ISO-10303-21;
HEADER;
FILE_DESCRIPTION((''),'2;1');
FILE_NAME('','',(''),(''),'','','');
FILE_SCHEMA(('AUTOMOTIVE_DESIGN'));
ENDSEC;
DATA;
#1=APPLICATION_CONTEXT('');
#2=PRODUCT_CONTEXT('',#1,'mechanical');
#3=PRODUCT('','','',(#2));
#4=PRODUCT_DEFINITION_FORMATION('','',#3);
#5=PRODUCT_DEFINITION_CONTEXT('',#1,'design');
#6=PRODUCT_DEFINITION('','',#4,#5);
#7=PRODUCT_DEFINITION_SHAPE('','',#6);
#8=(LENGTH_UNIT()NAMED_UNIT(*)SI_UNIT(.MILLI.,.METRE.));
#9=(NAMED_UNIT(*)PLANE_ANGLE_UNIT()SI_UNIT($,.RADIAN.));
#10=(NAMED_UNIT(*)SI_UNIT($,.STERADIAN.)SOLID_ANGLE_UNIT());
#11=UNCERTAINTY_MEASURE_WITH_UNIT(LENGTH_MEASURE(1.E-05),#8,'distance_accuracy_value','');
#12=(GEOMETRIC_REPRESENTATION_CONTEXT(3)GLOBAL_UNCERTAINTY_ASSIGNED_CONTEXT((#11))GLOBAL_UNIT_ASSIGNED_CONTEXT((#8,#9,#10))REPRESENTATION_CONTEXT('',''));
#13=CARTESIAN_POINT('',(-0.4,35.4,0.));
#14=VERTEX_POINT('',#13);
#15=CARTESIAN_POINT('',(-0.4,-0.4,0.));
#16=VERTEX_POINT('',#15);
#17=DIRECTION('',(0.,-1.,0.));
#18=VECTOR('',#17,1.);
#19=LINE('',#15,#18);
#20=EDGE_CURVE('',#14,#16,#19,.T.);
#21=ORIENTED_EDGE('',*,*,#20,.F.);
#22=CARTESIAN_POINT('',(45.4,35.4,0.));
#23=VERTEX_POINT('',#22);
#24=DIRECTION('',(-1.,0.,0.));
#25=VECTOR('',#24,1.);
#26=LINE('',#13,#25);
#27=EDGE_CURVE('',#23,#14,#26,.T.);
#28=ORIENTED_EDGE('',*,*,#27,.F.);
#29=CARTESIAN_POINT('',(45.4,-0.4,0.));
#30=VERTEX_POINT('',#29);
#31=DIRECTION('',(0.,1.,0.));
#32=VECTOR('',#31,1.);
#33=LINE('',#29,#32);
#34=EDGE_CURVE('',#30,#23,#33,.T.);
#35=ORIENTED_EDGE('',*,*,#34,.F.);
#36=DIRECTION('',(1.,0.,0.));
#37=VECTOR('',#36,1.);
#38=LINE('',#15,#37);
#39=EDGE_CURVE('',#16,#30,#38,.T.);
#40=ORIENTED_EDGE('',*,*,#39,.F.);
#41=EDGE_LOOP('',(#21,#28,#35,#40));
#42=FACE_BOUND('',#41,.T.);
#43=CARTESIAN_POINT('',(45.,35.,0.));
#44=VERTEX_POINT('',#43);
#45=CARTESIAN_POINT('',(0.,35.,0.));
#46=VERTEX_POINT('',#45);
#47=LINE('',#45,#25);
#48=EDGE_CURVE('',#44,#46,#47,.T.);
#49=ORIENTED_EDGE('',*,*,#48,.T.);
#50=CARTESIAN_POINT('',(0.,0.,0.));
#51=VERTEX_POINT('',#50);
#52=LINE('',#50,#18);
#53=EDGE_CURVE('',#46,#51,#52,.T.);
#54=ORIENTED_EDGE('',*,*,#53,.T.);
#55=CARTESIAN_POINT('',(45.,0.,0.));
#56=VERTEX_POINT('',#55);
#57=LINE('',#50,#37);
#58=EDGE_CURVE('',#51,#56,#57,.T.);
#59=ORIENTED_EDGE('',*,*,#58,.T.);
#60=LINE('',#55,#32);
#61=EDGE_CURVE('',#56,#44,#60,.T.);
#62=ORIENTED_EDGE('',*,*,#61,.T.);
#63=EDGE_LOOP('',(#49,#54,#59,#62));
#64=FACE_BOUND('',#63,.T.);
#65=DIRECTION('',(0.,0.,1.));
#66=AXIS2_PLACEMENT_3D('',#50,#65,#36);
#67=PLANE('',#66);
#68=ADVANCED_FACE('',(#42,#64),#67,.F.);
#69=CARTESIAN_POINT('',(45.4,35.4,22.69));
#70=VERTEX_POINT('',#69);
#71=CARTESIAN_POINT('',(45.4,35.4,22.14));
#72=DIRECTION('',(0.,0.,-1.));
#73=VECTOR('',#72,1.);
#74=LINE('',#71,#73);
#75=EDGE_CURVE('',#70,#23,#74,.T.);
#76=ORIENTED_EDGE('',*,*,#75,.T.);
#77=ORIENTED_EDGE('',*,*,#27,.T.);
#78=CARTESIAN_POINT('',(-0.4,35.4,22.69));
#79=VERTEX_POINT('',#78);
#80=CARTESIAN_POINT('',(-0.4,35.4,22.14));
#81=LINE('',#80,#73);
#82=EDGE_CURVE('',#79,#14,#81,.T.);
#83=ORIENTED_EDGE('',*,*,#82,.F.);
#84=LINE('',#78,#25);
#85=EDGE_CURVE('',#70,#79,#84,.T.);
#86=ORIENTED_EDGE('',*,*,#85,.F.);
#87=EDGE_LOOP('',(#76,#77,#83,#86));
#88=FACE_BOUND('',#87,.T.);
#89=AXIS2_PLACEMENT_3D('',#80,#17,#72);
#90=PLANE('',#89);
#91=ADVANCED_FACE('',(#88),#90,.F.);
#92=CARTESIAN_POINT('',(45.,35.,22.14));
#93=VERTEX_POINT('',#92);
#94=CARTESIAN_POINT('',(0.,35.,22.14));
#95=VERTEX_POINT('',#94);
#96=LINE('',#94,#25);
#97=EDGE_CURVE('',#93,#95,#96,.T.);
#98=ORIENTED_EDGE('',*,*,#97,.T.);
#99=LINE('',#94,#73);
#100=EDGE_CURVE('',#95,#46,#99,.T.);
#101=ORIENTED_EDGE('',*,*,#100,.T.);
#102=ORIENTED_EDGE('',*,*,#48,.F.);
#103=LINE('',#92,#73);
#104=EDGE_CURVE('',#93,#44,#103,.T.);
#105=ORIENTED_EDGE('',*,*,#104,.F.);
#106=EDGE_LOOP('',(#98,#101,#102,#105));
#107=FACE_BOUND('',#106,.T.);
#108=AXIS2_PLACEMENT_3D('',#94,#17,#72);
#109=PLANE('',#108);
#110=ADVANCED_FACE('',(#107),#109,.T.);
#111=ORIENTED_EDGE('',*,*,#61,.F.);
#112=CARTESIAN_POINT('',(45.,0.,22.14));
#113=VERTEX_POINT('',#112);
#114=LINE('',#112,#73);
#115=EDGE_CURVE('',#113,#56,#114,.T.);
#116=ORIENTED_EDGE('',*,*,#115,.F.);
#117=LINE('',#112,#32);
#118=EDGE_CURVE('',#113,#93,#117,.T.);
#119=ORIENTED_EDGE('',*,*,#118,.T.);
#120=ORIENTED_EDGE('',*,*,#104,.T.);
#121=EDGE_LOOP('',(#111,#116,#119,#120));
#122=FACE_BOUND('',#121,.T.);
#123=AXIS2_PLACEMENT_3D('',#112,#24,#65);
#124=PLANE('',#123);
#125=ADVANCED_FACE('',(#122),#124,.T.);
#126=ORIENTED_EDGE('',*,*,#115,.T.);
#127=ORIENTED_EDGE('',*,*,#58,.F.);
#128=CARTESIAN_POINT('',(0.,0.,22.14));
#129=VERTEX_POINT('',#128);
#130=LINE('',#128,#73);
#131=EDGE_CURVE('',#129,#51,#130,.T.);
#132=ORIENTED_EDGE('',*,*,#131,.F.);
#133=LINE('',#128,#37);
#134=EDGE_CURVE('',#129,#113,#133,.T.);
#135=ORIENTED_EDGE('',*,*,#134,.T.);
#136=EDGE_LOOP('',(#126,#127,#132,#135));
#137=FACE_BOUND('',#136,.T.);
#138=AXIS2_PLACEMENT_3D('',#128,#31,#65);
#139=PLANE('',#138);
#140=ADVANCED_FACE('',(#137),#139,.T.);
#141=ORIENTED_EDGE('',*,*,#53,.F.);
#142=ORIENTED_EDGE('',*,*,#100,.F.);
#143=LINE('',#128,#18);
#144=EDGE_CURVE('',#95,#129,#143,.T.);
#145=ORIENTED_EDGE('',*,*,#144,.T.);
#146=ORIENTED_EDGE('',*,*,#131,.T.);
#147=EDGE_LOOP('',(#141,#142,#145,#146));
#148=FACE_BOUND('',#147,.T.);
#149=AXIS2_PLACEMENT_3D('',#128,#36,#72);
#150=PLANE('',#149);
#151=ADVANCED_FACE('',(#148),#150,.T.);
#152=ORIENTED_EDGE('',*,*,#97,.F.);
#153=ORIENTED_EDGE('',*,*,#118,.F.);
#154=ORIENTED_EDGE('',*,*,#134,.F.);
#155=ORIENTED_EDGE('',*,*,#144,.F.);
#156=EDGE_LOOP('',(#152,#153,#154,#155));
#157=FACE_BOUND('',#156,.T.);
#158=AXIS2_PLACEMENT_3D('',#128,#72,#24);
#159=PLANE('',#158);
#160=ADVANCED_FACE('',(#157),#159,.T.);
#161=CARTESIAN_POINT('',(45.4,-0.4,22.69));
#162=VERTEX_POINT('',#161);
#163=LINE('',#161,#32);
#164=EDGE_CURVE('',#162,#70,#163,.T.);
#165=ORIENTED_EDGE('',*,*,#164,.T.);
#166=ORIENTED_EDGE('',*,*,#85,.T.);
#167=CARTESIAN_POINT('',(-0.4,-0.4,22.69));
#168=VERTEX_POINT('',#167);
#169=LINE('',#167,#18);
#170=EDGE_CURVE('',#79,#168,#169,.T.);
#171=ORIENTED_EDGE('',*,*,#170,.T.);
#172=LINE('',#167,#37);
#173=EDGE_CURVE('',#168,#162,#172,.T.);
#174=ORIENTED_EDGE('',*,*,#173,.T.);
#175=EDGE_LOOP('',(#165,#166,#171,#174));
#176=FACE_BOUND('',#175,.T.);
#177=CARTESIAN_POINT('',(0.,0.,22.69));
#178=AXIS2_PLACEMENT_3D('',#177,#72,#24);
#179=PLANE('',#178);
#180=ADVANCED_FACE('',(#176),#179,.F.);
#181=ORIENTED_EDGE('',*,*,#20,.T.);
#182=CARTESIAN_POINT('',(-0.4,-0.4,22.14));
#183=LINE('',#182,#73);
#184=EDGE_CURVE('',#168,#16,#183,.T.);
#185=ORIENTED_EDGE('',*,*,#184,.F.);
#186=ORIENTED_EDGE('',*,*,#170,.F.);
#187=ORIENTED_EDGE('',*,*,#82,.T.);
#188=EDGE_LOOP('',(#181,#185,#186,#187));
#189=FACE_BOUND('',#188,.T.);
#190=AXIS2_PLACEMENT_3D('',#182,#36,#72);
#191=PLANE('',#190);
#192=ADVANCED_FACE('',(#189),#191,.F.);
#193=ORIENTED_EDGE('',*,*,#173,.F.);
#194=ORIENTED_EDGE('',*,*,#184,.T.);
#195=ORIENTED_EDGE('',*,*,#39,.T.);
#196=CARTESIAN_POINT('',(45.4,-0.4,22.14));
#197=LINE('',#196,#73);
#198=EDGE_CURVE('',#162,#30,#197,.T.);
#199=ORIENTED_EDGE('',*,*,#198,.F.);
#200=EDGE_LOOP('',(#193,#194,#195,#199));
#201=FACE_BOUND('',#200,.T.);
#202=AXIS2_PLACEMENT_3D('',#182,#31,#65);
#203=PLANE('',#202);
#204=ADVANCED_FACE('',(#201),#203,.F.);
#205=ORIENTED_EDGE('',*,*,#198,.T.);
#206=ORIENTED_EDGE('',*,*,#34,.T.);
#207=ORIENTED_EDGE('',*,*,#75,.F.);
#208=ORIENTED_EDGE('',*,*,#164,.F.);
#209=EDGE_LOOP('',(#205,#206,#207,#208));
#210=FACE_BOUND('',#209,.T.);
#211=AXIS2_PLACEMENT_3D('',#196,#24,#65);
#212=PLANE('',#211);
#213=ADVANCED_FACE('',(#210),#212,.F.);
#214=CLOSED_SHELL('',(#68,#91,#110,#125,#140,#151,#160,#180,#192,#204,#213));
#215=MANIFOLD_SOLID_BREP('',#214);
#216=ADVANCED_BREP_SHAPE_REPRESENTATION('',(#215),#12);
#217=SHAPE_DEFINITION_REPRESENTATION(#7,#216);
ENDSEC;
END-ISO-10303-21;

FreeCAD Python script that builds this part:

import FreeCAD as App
import Part
import Sketcher
from FreeCAD import Vector
Q = App.Units.Quantity


def add_polygon(sketch, points):
    """Adds a closed chain of lines whose ends are joined by coincident constraints."""
    first, n = sketch.GeometryCount, len(points)
    for a, b in zip(points, points[1:] + points[:1]):
        sketch.addGeometry(Part.LineSegment(App.Vector(*a, 0), App.Vector(*b, 0)), False)
    for i in range(n):
        sketch.addConstraint(Sketcher.Constraint("Coincident", first + i, 2, first + (i + 1) % n, 1))

doc = App.newDocument("Part")
params = doc.addObject("Spreadsheet::Sheet", "Params")
for row, (alias, value) in enumerate([
    ("sketch1_width", "45 mm"),
    ("sketch1_height", "35 mm"),
    ("sketch1_width2", "45.8 mm"),
    ("sketch1_height2", "35.8 mm"),
    ("pad1_length", "22.14 mm"),
    ("sketch2_width", "45.8 mm"),
    ("sketch2_height", "35.8 mm"),
    ("pad2_length", "0.55 mm"),
], start=1):
    params.set(f"A{row}", alias)
    params.set(f"B{row}", "=" + value)
    params.setAlias(f"B{row}", alias)

body = doc.addObject("PartDesign::Body", "Body")

# Sketch on XY plane
sketch1 = body.newObject("Sketcher::SketchObject", "Sketch")
sketch1.AttachmentSupport = (doc.getObject("XY_Plane"), [""])
sketch1.MapMode = "FlatFace"
add_polygon(sketch1, [(0, 35), (0, 0), (45, 0), (45, 35)])  # lines 0-3
add_polygon(sketch1, [(45, 0), (0, 0), (0, 35), (45, 35)])  # lines 4-7
sketch1.addConstraint([
    Sketcher.Constraint("Vertical", 0),
    Sketcher.Constraint("Horizontal", 1),
    Sketcher.Constraint("Vertical", 2),
    Sketcher.Constraint("Horizontal", 3),
    Sketcher.Constraint("Horizontal", 4),
    Sketcher.Constraint("Vertical", 5),
    Sketcher.Constraint("Horizontal", 6),
    Sketcher.Constraint("Vertical", 7),
    Sketcher.Constraint("Coincident", 4, 2, -1, 1),
    Sketcher.Constraint("DistanceX", 4, 2, 4, 1, Q("45 mm")),
    Sketcher.Constraint("DistanceY", 5, 1, 5, 2, Q("35 mm")),
    Sketcher.Constraint("DistanceX", 1, 1, 1, 2, Q("45.8 mm")),
    Sketcher.Constraint("DistanceY", 0, 2, 0, 1, Q("35.8 mm")),
    Sketcher.Constraint("DistanceX", 0, 2, -1, 1, Q("0.4 mm")),
    Sketcher.Constraint("DistanceY", 0, 2, -1, 1, Q("0.4 mm")),
])
sketch1.setExpression("Constraints[17]", "Params.sketch1_width")
sketch1.setExpression("Constraints[18]", "Params.sketch1_height")
sketch1.setExpression("Constraints[19]", "Params.sketch1_width2")
sketch1.setExpression("Constraints[20]", "Params.sketch1_height2")
pad1 = body.newObject("PartDesign::Pad", "Pad")
pad1.Profile = sketch1
pad1.setExpression("Length", "Params.pad1_length")

# Sketch on XY plane
sketch2 = body.newObject("Sketcher::SketchObject", "Sketch001")
sketch2.AttachmentSupport = (doc.getObject("XY_Plane"), [""])
sketch2.MapMode = "FlatFace"
sketch2.AttachmentOffset = App.Placement(Vector(0, 0, 22.14), App.Rotation())
add_polygon(sketch2, [(0, 35), (0, 0), (45, 0), (45, 35)])  # lines 0-3
sketch2.addConstraint([
    Sketcher.Constraint("Vertical", 0),
    Sketcher.Constraint("Horizontal", 1),
    Sketcher.Constraint("Vertical", 2),
    Sketcher.Constraint("Horizontal", 3),
    Sketcher.Constraint("DistanceX", 1, 1, 1, 2, Q("45.8 mm")),
    Sketcher.Constraint("DistanceY", 0, 2, 0, 1, Q("35.8 mm")),
    Sketcher.Constraint("DistanceX", 0, 2, -1, 1, Q("0.4 mm")),
    Sketcher.Constraint("DistanceY", 0, 2, -1, 1, Q("0.4 mm")),
])
sketch2.setExpression("Constraints[8]", "Params.sketch2_width")
sketch2.setExpression("Constraints[9]", "Params.sketch2_height")
pad2 = body.newObject("PartDesign::Pad", "Pad001")
pad2.Profile = sketch2
pad2.setExpression("Length", "Params.pad2_length")

doc.recompute()
